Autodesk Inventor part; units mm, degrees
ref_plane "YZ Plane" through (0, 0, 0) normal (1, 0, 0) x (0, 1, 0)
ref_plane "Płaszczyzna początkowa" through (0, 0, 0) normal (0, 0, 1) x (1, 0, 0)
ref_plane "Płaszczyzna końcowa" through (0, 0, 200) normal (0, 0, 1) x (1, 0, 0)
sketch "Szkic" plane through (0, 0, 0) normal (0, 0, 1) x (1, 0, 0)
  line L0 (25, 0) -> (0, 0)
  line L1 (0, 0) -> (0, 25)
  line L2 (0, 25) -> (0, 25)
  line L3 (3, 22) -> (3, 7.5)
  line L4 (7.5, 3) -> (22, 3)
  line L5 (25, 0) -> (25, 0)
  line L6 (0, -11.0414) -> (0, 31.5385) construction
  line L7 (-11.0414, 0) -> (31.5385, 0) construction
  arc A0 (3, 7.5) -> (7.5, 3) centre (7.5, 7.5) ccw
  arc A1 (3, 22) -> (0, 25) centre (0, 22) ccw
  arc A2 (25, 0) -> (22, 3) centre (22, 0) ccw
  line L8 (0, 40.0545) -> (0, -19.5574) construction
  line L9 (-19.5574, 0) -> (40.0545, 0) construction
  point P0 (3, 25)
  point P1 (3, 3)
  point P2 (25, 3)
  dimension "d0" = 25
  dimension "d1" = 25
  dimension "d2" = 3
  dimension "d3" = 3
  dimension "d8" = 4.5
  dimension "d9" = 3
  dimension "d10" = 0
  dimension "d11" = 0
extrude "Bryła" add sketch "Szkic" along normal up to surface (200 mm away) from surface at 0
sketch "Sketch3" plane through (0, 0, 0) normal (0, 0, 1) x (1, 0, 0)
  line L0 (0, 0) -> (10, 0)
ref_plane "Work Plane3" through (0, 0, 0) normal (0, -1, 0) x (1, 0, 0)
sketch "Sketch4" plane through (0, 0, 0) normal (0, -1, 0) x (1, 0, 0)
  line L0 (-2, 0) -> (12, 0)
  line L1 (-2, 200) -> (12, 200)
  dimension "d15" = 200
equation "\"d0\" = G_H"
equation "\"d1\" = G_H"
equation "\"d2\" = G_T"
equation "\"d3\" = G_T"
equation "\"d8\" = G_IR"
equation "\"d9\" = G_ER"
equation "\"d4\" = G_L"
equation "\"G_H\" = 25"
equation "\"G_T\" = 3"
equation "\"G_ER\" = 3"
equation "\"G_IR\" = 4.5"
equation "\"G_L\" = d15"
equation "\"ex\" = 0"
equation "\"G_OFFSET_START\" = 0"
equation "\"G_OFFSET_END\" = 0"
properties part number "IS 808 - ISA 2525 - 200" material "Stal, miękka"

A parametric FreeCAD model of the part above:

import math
import FreeCAD as App
import Part
import Sketcher

doc = App.newDocument("Part")
params = doc.addObject("Spreadsheet::Sheet", "Params")
for row, (alias, value) in enumerate([
    ("sketch1_radius", "3 mm"),
    ("sketch1_radius2", "4.5 mm"),
    ("sketch1_width", "25 mm"),
    ("pad1_length", "200 mm"),
], start=1):
    params.set(f"A{row}", alias)
    params.set(f"B{row}", "=" + value)
    params.setAlias(f"B{row}", alias)

body = doc.addObject("PartDesign::Body", "Body")

# Sketch on XY plane
sketch1 = doc.addObject("Sketcher::SketchObject", "Sketch")
body.addObject(sketch1)
sketch1.AttachmentSupport = (doc.XY_Plane, [""])
sketch1.MapMode = "FlatFace"
sketch1.addGeometry(Part.LineSegment(App.Vector(0, 0, 0), App.Vector(25, 0, 0)), False)
sketch1.addGeometry(Part.ArcOfCircle(Part.Circle(App.Vector(22, 0, 0), App.Vector(0, 0, 1), 3), math.radians(0), math.radians(90)), False)
sketch1.addGeometry(Part.LineSegment(App.Vector(22, 3, 0), App.Vector(7.5, 3, 0)), False)
sketch1.addGeometry(Part.ArcOfCircle(Part.Circle(App.Vector(7.5, 7.5, 0), App.Vector(0, 0, 1), 4.5), math.radians(180), math.radians(270)), False)
sketch1.addGeometry(Part.LineSegment(App.Vector(3, 7.5, 0), App.Vector(3, 22, 0)), False)
sketch1.addGeometry(Part.ArcOfCircle(Part.Circle(App.Vector(0, 22, 0), App.Vector(0, 0, 1), 3), math.radians(0), math.radians(90)), False)
sketch1.addGeometry(Part.LineSegment(App.Vector(0, 25, 0), App.Vector(0, 0, 0)), False)
sketch1.addConstraint(Sketcher.Constraint("Coincident", 0, 2, 1, 1))
sketch1.addConstraint(Sketcher.Constraint("Tangent", 1, 2, 2, 1))
sketch1.addConstraint(Sketcher.Constraint("Tangent", 2, 2, 3, 2))
sketch1.addConstraint(Sketcher.Constraint("Tangent", 3, 1, 4, 1))
sketch1.addConstraint(Sketcher.Constraint("Tangent", 4, 2, 5, 1))
sketch1.addConstraint(Sketcher.Constraint("Coincident", 5, 2, 6, 1))
sketch1.addConstraint(Sketcher.Constraint("Coincident", 6, 2, 0, 1))
sketch1.addConstraint(Sketcher.Constraint("Horizontal", 0))
sketch1.addConstraint(Sketcher.Constraint("Horizontal", 2))
sketch1.addConstraint(Sketcher.Constraint("Vertical", 4))
sketch1.addConstraint(Sketcher.Constraint("Vertical", 6))
sketch1.addConstraint(Sketcher.Constraint("Coincident", 6, 2, -1, 1))
sketch1.addConstraint(Sketcher.Constraint("Equal", 1, 5))
sketch1.addConstraint(Sketcher.Constraint("PointOnObject", 1, 3, -1))
sketch1.addConstraint(Sketcher.Constraint("PointOnObject", 5, 3, -2))
sketch1.addConstraint(Sketcher.Constraint("Equal", 2, 4))
sketch1.addConstraint(Sketcher.Constraint("Radius", 1, 3.0))
sketch1.addConstraint(Sketcher.Constraint("Radius", 3, 4.5))
sketch1.addConstraint(Sketcher.Constraint("DistanceX", 0, 1, 0, 2, 25.0))
sketch1.setExpression("Constraints[16]", "Params.sketch1_radius")
sketch1.setExpression("Constraints[17]", "Params.sketch1_radius2")
sketch1.setExpression("Constraints[18]", "Params.sketch1_width")
pad1 = doc.addObject("PartDesign::Pad", "Pad")
body.addObject(pad1)
pad1.Profile = sketch1
pad1.setExpression("Length", "Params.pad1_length")

doc.recompute()
